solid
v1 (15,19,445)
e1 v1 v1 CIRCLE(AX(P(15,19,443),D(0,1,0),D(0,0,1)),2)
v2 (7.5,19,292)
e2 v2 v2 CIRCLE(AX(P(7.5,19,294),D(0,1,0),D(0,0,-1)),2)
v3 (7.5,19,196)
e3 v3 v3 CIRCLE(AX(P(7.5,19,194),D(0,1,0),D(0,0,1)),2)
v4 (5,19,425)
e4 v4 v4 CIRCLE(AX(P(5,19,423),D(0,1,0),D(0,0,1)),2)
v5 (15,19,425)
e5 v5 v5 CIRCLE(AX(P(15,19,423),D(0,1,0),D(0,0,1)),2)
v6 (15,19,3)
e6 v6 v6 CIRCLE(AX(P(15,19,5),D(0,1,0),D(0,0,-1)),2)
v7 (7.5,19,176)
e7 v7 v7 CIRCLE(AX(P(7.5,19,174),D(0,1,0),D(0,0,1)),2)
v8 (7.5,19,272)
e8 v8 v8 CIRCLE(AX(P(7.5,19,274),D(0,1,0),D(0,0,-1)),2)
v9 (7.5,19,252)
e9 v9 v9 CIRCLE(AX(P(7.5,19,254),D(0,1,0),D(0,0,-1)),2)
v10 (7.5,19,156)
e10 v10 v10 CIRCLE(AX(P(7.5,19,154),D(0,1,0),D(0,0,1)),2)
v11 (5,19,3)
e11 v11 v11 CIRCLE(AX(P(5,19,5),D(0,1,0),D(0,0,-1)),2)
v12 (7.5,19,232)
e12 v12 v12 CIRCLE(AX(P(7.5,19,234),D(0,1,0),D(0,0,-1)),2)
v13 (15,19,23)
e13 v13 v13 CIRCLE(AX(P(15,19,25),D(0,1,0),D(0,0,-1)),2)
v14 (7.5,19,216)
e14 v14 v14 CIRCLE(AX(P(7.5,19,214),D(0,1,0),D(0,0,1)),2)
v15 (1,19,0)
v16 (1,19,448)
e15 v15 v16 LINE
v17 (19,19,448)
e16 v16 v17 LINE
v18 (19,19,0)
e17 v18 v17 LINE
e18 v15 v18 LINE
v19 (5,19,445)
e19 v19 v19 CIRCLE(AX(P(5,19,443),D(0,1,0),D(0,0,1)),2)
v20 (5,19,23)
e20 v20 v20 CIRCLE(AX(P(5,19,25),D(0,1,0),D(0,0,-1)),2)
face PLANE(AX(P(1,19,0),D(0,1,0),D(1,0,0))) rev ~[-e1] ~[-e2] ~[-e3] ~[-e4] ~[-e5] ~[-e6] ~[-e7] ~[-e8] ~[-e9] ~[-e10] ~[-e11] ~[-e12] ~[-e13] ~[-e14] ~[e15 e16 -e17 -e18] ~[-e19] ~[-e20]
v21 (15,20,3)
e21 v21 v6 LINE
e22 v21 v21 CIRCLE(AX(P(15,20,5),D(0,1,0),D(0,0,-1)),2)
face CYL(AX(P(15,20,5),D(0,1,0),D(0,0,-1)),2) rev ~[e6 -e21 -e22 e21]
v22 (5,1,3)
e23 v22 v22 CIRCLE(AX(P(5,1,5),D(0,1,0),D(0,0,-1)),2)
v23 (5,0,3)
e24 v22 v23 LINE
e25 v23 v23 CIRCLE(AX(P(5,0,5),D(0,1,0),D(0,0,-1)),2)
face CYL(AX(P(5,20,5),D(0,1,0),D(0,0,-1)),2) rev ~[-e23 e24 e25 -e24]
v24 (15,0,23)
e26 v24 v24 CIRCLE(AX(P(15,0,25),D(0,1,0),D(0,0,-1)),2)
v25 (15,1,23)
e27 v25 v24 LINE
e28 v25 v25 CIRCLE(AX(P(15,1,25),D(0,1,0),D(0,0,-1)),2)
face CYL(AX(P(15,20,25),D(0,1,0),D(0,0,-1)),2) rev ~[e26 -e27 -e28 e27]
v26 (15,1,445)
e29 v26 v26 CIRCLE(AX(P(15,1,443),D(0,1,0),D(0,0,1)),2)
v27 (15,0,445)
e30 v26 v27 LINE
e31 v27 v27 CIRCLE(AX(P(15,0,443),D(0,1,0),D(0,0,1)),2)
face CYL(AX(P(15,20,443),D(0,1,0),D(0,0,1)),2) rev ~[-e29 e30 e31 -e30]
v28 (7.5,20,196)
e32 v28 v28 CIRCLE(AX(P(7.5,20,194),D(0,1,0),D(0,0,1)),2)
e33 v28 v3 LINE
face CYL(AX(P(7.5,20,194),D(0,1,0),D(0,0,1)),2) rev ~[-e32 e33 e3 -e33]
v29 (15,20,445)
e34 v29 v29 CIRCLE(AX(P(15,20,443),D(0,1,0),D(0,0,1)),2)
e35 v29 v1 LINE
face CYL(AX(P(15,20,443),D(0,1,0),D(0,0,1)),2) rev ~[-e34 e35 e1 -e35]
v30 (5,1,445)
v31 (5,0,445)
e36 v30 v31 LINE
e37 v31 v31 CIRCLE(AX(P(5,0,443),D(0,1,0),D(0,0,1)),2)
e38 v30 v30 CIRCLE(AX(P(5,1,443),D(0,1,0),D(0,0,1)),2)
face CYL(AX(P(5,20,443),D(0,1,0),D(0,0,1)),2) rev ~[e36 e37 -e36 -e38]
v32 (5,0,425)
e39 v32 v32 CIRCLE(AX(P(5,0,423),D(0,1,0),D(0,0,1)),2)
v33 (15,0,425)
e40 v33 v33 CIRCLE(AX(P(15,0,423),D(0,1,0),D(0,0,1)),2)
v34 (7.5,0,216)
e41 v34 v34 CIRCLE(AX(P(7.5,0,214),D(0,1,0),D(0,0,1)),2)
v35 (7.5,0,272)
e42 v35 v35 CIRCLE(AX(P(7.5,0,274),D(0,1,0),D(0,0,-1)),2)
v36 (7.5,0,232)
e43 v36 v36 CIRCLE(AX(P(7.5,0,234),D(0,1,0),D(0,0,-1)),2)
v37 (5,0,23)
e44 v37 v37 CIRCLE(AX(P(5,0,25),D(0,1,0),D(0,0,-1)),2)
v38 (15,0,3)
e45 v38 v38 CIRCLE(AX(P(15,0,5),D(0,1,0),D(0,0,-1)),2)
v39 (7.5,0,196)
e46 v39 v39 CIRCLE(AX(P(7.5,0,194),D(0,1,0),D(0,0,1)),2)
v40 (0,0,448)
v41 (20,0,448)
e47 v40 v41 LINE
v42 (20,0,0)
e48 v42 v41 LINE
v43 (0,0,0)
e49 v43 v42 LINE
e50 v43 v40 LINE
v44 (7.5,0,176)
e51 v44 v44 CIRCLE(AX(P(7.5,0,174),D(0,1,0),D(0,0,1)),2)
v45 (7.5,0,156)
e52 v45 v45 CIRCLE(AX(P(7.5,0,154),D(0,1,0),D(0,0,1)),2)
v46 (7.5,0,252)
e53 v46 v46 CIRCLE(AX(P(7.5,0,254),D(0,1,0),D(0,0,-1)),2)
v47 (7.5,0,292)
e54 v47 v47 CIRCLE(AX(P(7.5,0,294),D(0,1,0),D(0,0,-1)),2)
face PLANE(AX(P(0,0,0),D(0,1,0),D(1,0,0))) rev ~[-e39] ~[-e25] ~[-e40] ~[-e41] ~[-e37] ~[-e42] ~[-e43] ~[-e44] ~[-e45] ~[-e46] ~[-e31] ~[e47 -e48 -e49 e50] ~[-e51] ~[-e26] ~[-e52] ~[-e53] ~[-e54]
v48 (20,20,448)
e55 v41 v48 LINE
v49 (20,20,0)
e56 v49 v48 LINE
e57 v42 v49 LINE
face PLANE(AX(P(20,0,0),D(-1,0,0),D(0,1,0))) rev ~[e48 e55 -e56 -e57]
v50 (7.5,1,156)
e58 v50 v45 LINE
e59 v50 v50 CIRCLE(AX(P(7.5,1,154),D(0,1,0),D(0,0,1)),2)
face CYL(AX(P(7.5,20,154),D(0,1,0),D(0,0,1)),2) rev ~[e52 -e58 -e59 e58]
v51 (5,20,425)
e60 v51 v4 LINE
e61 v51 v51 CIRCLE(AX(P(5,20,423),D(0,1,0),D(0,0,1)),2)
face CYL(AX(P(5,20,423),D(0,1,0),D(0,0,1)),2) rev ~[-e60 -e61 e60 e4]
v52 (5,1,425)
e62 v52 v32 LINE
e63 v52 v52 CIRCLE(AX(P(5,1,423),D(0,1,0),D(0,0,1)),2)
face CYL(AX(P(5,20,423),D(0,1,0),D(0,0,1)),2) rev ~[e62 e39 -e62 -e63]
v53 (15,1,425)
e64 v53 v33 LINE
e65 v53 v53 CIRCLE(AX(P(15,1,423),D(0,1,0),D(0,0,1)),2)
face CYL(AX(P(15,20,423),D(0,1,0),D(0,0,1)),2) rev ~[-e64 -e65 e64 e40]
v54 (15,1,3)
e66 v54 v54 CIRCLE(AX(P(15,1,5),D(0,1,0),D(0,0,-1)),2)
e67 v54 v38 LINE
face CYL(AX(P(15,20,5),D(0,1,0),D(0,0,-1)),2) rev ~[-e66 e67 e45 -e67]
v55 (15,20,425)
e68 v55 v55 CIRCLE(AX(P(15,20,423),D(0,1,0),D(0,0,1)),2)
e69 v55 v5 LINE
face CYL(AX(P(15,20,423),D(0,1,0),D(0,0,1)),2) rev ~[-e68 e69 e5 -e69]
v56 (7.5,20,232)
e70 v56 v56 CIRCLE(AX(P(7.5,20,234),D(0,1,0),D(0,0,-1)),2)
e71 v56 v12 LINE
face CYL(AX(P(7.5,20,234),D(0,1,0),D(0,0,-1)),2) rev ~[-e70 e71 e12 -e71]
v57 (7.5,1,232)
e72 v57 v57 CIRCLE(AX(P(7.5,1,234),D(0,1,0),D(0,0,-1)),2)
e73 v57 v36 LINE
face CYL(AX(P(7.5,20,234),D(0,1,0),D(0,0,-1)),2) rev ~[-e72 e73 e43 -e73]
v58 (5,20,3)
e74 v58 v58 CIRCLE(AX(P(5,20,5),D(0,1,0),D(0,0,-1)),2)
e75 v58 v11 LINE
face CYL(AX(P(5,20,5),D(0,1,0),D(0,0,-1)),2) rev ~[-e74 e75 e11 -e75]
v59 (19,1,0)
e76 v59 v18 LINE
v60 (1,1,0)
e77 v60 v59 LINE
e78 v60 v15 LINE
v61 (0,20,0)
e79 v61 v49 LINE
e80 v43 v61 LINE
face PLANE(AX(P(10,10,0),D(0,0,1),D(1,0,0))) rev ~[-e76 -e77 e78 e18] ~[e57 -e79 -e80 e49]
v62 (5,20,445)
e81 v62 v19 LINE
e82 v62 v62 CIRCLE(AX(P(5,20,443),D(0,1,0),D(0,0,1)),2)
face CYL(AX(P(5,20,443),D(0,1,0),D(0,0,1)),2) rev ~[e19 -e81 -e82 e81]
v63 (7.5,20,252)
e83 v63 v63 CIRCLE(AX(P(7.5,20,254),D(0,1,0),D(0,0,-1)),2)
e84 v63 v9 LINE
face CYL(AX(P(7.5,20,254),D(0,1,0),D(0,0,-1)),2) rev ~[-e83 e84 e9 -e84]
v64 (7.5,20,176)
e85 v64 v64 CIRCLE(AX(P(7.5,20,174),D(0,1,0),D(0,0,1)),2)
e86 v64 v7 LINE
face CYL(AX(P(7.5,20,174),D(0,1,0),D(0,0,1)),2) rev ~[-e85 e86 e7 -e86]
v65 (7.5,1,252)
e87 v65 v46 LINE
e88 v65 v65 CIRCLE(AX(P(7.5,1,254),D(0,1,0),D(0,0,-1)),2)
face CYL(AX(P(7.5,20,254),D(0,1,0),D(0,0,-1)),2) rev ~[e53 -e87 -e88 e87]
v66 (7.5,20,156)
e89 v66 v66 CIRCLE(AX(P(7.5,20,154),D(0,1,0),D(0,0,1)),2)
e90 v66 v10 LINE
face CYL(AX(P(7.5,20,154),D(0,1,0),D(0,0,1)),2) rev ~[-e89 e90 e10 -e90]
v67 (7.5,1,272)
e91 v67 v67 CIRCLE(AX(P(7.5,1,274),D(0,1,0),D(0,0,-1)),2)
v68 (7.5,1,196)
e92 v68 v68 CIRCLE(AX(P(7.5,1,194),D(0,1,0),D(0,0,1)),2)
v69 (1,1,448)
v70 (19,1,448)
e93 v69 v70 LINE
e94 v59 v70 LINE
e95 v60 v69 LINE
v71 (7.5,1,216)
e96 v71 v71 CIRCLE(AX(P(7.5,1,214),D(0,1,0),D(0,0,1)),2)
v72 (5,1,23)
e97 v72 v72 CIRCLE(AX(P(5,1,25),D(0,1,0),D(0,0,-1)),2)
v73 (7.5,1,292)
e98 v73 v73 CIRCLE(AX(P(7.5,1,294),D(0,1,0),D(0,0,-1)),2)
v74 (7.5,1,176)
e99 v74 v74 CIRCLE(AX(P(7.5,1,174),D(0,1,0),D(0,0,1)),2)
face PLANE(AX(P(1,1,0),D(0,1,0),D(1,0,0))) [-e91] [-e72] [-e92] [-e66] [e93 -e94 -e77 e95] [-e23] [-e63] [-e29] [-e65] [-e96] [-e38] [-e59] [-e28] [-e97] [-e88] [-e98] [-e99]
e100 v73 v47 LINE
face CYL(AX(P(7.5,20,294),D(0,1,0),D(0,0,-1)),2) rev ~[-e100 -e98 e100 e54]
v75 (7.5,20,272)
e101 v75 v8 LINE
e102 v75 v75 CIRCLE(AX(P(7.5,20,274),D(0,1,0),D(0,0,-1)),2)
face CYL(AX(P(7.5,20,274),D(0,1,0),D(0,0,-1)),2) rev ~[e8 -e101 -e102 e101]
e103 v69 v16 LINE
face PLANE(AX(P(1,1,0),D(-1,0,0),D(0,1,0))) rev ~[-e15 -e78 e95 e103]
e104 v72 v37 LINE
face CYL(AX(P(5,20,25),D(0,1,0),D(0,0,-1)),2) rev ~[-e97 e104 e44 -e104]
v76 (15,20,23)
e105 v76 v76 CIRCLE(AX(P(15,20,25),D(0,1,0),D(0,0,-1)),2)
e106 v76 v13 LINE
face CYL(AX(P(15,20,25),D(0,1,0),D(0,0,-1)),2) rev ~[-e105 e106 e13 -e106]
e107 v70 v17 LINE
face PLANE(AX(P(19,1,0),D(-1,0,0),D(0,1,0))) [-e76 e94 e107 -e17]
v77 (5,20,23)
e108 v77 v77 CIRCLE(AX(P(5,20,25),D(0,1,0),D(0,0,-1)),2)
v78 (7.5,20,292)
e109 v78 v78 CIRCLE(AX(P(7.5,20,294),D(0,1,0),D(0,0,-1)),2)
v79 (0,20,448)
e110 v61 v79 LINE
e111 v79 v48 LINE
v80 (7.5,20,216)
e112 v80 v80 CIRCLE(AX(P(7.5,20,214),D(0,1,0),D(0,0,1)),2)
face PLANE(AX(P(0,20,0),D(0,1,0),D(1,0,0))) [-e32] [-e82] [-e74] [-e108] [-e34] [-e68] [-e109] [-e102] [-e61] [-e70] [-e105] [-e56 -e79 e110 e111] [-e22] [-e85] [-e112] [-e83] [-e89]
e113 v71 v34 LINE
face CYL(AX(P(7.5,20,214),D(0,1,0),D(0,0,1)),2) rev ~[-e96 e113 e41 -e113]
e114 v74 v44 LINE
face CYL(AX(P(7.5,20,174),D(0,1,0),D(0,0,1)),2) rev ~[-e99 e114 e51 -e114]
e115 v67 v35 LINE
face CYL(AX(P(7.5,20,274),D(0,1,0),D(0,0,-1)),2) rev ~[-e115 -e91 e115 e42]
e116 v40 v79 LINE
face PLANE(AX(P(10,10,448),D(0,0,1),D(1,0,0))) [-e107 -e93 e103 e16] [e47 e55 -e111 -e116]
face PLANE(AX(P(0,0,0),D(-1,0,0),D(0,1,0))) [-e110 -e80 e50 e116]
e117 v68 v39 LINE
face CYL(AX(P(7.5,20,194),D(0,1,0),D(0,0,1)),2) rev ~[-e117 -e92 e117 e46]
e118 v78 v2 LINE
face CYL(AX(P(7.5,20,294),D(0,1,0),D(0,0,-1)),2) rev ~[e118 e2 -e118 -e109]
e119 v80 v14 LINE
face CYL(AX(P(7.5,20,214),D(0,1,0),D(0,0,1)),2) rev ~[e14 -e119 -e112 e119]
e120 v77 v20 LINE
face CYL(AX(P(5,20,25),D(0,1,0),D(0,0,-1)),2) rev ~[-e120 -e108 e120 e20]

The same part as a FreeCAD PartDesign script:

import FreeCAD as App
import Part
import Sketcher

V = App.Vector

doc = App.newDocument("Part")
body = doc.addObject("PartDesign::Body", "Body")

# Sketch on XY plane
sketch1 = doc.addObject("Sketcher::SketchObject", "Sketch")
body.addObject(sketch1)
sketch1.AttachmentSupport = (doc.XY_Plane, [""])
sketch1.MapMode = "FlatFace"
sketch1.addGeometry([
    Part.LineSegment(V(0, 20, 0), V(0, 0, 0)),  # 0
    Part.LineSegment(V(0, 0, 0), V(20, 0, 0)),  # 1
    Part.LineSegment(V(20, 0, 0), V(20, 20, 0)),  # 2
    Part.LineSegment(V(20, 20, 0), V(0, 20, 0)),  # 3
    Part.LineSegment(V(19, 1, 0), V(1, 1, 0)),  # 4
    Part.LineSegment(V(1, 1, 0), V(1, 19, 0)),  # 5
    Part.LineSegment(V(1, 19, 0), V(19, 19, 0)),  # 6
    Part.LineSegment(V(19, 19, 0), V(19, 1, 0)),  # 7
], False)
sketch1.addConstraint([
    Sketcher.Constraint("Coincident", 0, 2, 1, 1),
    Sketcher.Constraint("Coincident", 1, 2, 2, 1),
    Sketcher.Constraint("Coincident", 2, 2, 3, 1),
    Sketcher.Constraint("Coincident", 3, 2, 0, 1),
    Sketcher.Constraint("Coincident", 4, 2, 5, 1),
    Sketcher.Constraint("Coincident", 5, 2, 6, 1),
    Sketcher.Constraint("Coincident", 6, 2, 7, 1),
    Sketcher.Constraint("Coincident", 7, 2, 4, 1),
    Sketcher.Constraint("Vertical", 0),
    Sketcher.Constraint("Horizontal", 1),
    Sketcher.Constraint("Vertical", 2),
    Sketcher.Constraint("Horizontal", 3),
    Sketcher.Constraint("Horizontal", 4),
    Sketcher.Constraint("Vertical", 5),
    Sketcher.Constraint("Horizontal", 6),
    Sketcher.Constraint("Vertical", 7),
    Sketcher.Constraint("Coincident", 0, 2, -1, 1),
    Sketcher.Constraint("Equal", 3, 0),
    Sketcher.Constraint("Equal", 6, 5),
    Sketcher.Constraint("DistanceX", 1, 1, 1, 2, 20.0),
    Sketcher.Constraint("DistanceX", 4, 2, 4, 1, 18.0),
    Sketcher.Constraint("DistanceX", -1, 1, 4, 2, 1.0),
    Sketcher.Constraint("DistanceY", -1, 1, 4, 2, 1.0),
])
pad1 = doc.addObject("PartDesign::Pad", "Pad")
body.addObject(pad1)
pad1.Profile = sketch1
pad1.Length = 448

# Sketch on XZ plane
sketch2 = doc.addObject("Sketcher::SketchObject", "Sketch001")
body.addObject(sketch2)
sketch2.AttachmentSupport = (doc.XZ_Plane, [""])
sketch2.MapMode = "FlatFace"
sketch2.AttachmentOffset = App.Placement(V(0, 0, -20), App.Rotation())
sketch2.addGeometry([
    Part.Circle(V(5, 423, 0), V(0, 0, 1), 2),  # 0
    Part.Circle(V(15, 423, 0), V(0, 0, 1), 2),  # 1
    Part.Circle(V(15, 443, 0), V(0, 0, 1), 2),  # 2
    Part.Circle(V(5, 443, 0), V(0, 0, 1), 2),  # 3
    Part.Circle(V(5, 5, 0), V(0, 0, 1), 2),  # 4
    Part.Circle(V(15, 5, 0), V(0, 0, 1), 2),  # 5
    Part.Circle(V(15, 25, 0), V(0, 0, 1), 2),  # 6
    Part.Circle(V(5, 25, 0), V(0, 0, 1), 2),  # 7
    Part.Circle(V(7.5, 154, 0), V(0, 0, 1), 2),  # 8
    Part.Circle(V(7.5, 174, 0), V(0, 0, 1), 2),  # 9
    Part.Circle(V(7.5, 194, 0), V(0, 0, 1), 2),  # 10
    Part.Circle(V(7.5, 214, 0), V(0, 0, 1), 2),  # 11
    Part.Circle(V(7.5, 234, 0), V(0, 0, 1), 2),  # 12
    Part.Circle(V(7.5, 254, 0), V(0, 0, 1), 2),  # 13
    Part.Circle(V(7.5, 274, 0), V(0, 0, 1), 2),  # 14
    Part.Circle(V(7.5, 294, 0), V(0, 0, 1), 2),  # 15
], False)
sketch2.addConstraint([
    Sketcher.Constraint("Equal", 0, 1),
    Sketcher.Constraint("Equal", 1, 2),
    Sketcher.Constraint("Equal", 2, 3),
    Sketcher.Constraint("Equal", 3, 4),
    Sketcher.Constraint("Equal", 4, 5),
    Sketcher.Constraint("Equal", 5, 6),
    Sketcher.Constraint("Equal", 6, 7),
    Sketcher.Constraint("Equal", 7, 8),
    Sketcher.Constraint("Equal", 8, 9),
    Sketcher.Constraint("Equal", 9, 10),
    Sketcher.Constraint("Equal", 10, 11),
    Sketcher.Constraint("Equal", 11, 12),
    Sketcher.Constraint("Equal", 12, 13),
    Sketcher.Constraint("Equal", 13, 14),
    Sketcher.Constraint("Equal", 14, 15),
    Sketcher.Constraint("Horizontal", 0, 3, 1, 3),
    Sketcher.Constraint("Horizontal", 2, 3, 3, 3),
    Sketcher.Constraint("Horizontal", 4, 3, 5, 3),
    Sketcher.Constraint("Horizontal", 6, 3, 7, 3),
    Sketcher.Constraint("Vertical", 1, 3, 2, 3),
    Sketcher.Constraint("Vertical", 0, 3, 3, 3),
    Sketcher.Constraint("Vertical", 3, 3, 4, 3),
    Sketcher.Constraint("Vertical", 2, 3, 5, 3),
    Sketcher.Constraint("Vertical", 5, 3, 6, 3),
    Sketcher.Constraint("Vertical", 4, 3, 7, 3),
    Sketcher.Constraint("Vertical", 8, 3, 9, 3),
    Sketcher.Constraint("Vertical", 9, 3, 10, 3),
    Sketcher.Constraint("Vertical", 10, 3, 11, 3),
    Sketcher.Constraint("Vertical", 11, 3, 12, 3),
    Sketcher.Constraint("Vertical", 12, 3, 13, 3),
    Sketcher.Constraint("Vertical", 13, 3, 14, 3),
    Sketcher.Constraint("Vertical", 14, 3, 15, 3),
    Sketcher.Constraint("Diameter", 0, 4.0),
    Sketcher.Constraint("DistanceX", -1, 1, 0, 3, 5.0),
    Sketcher.Constraint("DistanceY", -1, 1, 0, 3, 423.0),
    Sketcher.Constraint("DistanceX", -1, 1, 1, 3, 15.0),
    Sketcher.Constraint("DistanceY", -1, 1, 2, 3, 443.0),
    Sketcher.Constraint("DistanceY", -1, 1, 4, 3, 5.0),
    Sketcher.Constraint("DistanceY", -1, 1, 6, 3, 25.0),
    Sketcher.Constraint("DistanceY", -1, 1, 8, 3, 154.0),
    Sketcher.Constraint("DistanceY", -1, 1, 9, 3, 174.0),
    Sketcher.Constraint("DistanceY", -1, 1, 10, 3, 194.0),
    Sketcher.Constraint("DistanceY", -1, 1, 11, 3, 214.0),
    Sketcher.Constraint("DistanceY", -1, 1, 12, 3, 234.0),
    Sketcher.Constraint("DistanceY", -1, 1, 13, 3, 254.0),
    Sketcher.Constraint("DistanceY", -1, 1, 14, 3, 274.0),
    Sketcher.Constraint("DistanceY", -1, 1, 15, 3, 294.0),
    Sketcher.Constraint("DistanceX", -1, 1, 8, 3, 7.5),
])
pocket1 = doc.addObject("PartDesign::Pocket", "Pocket")
body.addObject(pocket1)
pocket1.Profile = sketch2
pocket1.Type = "ThroughAll"
pocket1.Reversed = True

doc.recompute()
